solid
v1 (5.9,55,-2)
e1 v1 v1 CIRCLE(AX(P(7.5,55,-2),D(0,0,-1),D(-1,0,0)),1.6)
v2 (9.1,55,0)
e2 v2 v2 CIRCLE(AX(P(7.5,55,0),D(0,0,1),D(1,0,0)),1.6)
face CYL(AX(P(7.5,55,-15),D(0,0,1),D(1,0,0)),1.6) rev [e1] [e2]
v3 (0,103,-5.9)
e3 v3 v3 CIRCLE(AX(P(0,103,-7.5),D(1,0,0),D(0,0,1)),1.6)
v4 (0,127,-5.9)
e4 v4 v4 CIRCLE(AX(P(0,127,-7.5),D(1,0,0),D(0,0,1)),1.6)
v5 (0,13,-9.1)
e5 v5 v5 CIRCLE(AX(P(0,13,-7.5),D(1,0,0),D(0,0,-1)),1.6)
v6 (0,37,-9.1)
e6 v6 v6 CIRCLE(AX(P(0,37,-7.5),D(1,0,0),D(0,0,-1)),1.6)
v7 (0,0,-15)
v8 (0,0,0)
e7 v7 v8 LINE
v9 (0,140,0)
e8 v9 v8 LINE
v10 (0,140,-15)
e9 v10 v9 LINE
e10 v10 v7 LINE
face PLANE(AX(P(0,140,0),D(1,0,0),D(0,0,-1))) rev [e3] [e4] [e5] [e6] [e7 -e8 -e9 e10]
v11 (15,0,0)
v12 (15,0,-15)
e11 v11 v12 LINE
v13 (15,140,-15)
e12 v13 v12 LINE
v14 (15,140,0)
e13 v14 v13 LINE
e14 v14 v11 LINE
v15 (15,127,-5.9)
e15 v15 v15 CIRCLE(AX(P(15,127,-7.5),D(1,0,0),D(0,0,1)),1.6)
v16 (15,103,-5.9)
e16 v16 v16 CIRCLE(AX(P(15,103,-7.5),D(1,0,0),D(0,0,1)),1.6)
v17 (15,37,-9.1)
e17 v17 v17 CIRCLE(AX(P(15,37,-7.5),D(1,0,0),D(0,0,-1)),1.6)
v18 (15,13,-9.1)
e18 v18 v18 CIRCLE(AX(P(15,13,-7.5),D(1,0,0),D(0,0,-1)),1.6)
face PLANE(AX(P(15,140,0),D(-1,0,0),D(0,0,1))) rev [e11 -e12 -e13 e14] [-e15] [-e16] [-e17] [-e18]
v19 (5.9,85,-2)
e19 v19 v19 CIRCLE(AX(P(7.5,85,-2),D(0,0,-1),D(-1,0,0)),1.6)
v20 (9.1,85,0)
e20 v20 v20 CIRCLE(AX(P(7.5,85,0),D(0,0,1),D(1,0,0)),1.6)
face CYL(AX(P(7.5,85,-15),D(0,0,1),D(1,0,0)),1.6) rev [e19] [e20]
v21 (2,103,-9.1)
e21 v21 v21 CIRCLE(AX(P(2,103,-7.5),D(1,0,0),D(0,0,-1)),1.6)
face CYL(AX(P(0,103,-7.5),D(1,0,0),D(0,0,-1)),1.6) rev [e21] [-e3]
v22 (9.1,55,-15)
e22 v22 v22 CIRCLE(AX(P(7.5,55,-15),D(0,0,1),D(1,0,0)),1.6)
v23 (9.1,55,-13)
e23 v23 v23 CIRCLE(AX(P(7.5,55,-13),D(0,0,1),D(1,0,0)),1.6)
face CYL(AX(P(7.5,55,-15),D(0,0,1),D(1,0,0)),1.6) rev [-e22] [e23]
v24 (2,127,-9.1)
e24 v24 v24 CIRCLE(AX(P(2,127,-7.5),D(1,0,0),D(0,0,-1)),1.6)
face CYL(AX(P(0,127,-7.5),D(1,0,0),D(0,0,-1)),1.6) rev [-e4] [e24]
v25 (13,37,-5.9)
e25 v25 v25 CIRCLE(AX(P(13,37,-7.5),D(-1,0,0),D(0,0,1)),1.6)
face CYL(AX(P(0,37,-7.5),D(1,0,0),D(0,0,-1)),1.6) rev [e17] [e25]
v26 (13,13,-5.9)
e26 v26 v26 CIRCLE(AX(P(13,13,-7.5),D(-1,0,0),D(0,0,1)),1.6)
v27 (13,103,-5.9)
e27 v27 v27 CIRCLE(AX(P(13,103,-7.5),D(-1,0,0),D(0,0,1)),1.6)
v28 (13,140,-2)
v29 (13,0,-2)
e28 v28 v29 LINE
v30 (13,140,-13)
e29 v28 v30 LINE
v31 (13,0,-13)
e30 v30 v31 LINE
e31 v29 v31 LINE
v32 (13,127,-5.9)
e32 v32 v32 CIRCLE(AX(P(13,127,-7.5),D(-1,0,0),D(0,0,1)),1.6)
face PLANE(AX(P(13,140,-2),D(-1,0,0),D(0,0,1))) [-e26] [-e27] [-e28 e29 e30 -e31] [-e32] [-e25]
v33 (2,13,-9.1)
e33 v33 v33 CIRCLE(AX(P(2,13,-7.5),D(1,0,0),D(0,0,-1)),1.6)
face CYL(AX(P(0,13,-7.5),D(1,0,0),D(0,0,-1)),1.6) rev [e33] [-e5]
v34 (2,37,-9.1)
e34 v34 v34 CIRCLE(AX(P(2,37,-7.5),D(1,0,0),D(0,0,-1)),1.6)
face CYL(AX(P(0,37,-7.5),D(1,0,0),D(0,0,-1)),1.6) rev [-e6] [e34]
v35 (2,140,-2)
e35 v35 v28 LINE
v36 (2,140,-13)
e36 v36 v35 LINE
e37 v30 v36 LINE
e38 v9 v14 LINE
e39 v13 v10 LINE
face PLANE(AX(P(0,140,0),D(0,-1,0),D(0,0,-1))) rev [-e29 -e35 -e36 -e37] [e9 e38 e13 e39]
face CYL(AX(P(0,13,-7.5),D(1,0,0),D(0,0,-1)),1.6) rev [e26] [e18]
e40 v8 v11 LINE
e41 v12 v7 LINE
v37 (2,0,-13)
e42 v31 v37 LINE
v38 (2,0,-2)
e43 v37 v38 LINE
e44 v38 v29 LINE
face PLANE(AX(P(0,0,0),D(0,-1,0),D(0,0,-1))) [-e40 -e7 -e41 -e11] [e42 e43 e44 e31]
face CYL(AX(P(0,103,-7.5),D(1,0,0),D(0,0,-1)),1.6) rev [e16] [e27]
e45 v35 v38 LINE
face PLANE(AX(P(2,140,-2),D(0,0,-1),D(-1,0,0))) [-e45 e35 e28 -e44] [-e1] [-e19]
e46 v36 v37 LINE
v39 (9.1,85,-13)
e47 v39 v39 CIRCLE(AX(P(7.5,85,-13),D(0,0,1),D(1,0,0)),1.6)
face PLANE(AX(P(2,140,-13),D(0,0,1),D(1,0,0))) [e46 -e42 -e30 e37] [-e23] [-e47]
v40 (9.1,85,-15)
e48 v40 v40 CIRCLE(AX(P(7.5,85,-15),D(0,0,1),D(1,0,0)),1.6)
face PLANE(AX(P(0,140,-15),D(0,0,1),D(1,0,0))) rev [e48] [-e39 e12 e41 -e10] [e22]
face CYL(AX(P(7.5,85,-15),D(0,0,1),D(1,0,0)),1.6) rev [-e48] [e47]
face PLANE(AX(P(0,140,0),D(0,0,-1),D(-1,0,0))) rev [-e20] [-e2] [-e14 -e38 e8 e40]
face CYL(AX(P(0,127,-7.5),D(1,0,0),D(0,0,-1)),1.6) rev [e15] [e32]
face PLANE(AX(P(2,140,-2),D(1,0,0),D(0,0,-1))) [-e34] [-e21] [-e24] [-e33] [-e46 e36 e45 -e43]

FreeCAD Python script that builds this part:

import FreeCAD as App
import Part
import Sketcher
from FreeCAD import Vector
Q = App.Units.Quantity

doc = App.newDocument("Part")
params = doc.addObject("Spreadsheet::Sheet", "Params")
for row, (alias, value) in enumerate([
    ("sketch1_width", "15 mm"),
    ("sketch1_width2", "11 mm"),
    ("pad1_length", "140 mm"),
    ("sketch2_diameter", "3.2 mm"),
    ("sketch3_diameter", "3.2 mm"),
], start=1):
    params.set(f"A{row}", alias)
    params.set(f"B{row}", "=" + value)
    params.setAlias(f"B{row}", alias)

body = doc.addObject("PartDesign::Body", "Body")

# Sketch on XZ plane
sketch1 = body.newObject("Sketcher::SketchObject", "Sketch")
sketch1.AttachmentSupport = (doc.getObject("XZ_Plane"), [""])
sketch1.MapMode = "FlatFace"
sketch1.addGeometry(Part.LineSegment(Vector(0, -15, 0), Vector(0, 0, 0)), False)
sketch1.addGeometry(Part.LineSegment(Vector(0, 0, 0), Vector(15, 0, 0)), False)
sketch1.addGeometry(Part.LineSegment(Vector(15, 0, 0), Vector(15, -15, 0)), False)
sketch1.addGeometry(Part.LineSegment(Vector(15, -15, 0), Vector(0, -15, 0)), False)
sketch1.addGeometry(Part.LineSegment(Vector(13, -2, 0), Vector(2, -2, 0)), False)
sketch1.addGeometry(Part.LineSegment(Vector(2, -2, 0), Vector(2, -13, 0)), False)
sketch1.addGeometry(Part.LineSegment(Vector(2, -13, 0), Vector(13, -13, 0)), False)
sketch1.addGeometry(Part.LineSegment(Vector(13, -13, 0), Vector(13, -2, 0)), False)
sketch1.addConstraint(Sketcher.Constraint("Coincident", 0, 2, 1, 1))
sketch1.addConstraint(Sketcher.Constraint("Coincident", 1, 2, 2, 1))
sketch1.addConstraint(Sketcher.Constraint("Coincident", 2, 2, 3, 1))
sketch1.addConstraint(Sketcher.Constraint("Coincident", 3, 2, 0, 1))
sketch1.addConstraint(Sketcher.Constraint("Coincident", 4, 2, 5, 1))
sketch1.addConstraint(Sketcher.Constraint("Coincident", 5, 2, 6, 1))
sketch1.addConstraint(Sketcher.Constraint("Coincident", 6, 2, 7, 1))
sketch1.addConstraint(Sketcher.Constraint("Coincident", 7, 2, 4, 1))
sketch1.addConstraint(Sketcher.Constraint("Vertical", 0))
sketch1.addConstraint(Sketcher.Constraint("Horizontal", 1))
sketch1.addConstraint(Sketcher.Constraint("Vertical", 2))
sketch1.addConstraint(Sketcher.Constraint("Horizontal", 3))
sketch1.addConstraint(Sketcher.Constraint("Horizontal", 4))
sketch1.addConstraint(Sketcher.Constraint("Vertical", 5))
sketch1.addConstraint(Sketcher.Constraint("Horizontal", 6))
sketch1.addConstraint(Sketcher.Constraint("Vertical", 7))
sketch1.addConstraint(Sketcher.Constraint("Coincident", 0, 2, -1, 1))
sketch1.addConstraint(Sketcher.Constraint("Equal", 3, 0))
sketch1.addConstraint(Sketcher.Constraint("Equal", 6, 5))
sketch1.addConstraint(Sketcher.Constraint("DistanceX", 1, 1, 1, 2, Q("15 mm")))
sketch1.addConstraint(Sketcher.Constraint("DistanceX", 4, 2, 4, 1, Q("11 mm")))
sketch1.addConstraint(Sketcher.Constraint("DistanceX", -1, 1, 4, 2, Q("2 mm")))
sketch1.addConstraint(Sketcher.Constraint("DistanceY", 4, 2, -1, 1, Q("2 mm")))
sketch1.setExpression("Constraints[19]", "Params.sketch1_width")
sketch1.setExpression("Constraints[20]", "Params.sketch1_width2")
pad1 = body.newObject("PartDesign::Pad", "Pad")
pad1.Profile = sketch1
pad1.setExpression("Length", "Params.pad1_length")
pad1.Reversed = True

# Sketch on YZ plane
sketch2 = body.newObject("Sketcher::SketchObject", "Sketch001")
sketch2.AttachmentSupport = (doc.getObject("YZ_Plane"), [""])
sketch2.MapMode = "FlatFace"
sketch2.AttachmentOffset = App.Placement(Vector(0, 0, 15), App.Rotation())
sketch2.addGeometry(Part.Circle(Vector(13, -7.5, 0), Vector(0, 0, 1), 1.6), False)
sketch2.addGeometry(Part.Circle(Vector(37, -7.5, 0), Vector(0, 0, 1), 1.6), False)
sketch2.addGeometry(Part.Circle(Vector(103, -7.5, 0), Vector(0, 0, 1), 1.6), False)
sketch2.addGeometry(Part.Circle(Vector(127, -7.5, 0), Vector(0, 0, 1), 1.6), False)
sketch2.addConstraint(Sketcher.Constraint("Equal", 0, 1))
sketch2.addConstraint(Sketcher.Constraint("Equal", 1, 2))
sketch2.addConstraint(Sketcher.Constraint("Equal", 2, 3))
sketch2.addConstraint(Sketcher.Constraint("Horizontal", 0, 3, 1, 3))
sketch2.addConstraint(Sketcher.Constraint("Horizontal", 1, 3, 2, 3))
sketch2.addConstraint(Sketcher.Constraint("Horizontal", 2, 3, 3, 3))
sketch2.addConstraint(Sketcher.Constraint("Diameter", 0, Q("3.2 mm")))
sketch2.addConstraint(Sketcher.Constraint("DistanceX", -1, 1, 0, 3, Q("13 mm")))
sketch2.addConstraint(Sketcher.Constraint("DistanceX", -1, 1, 1, 3, Q("37 mm")))
sketch2.addConstraint(Sketcher.Constraint("DistanceX", -1, 1, 2, 3, Q("103 mm")))
sketch2.addConstraint(Sketcher.Constraint("DistanceX", -1, 1, 3, 3, Q("127 mm")))
sketch2.addConstraint(Sketcher.Constraint("DistanceY", 0, 3, -1, 1, Q("7.5 mm")))
sketch2.setExpression("Constraints[6]", "Params.sketch2_diameter")
pocket1 = body.newObject("PartDesign::Pocket", "Pocket")
pocket1.Profile = sketch2
pocket1.Type = "ThroughAll"

# Sketch on XY plane
sketch3 = body.newObject("Sketcher::SketchObject", "Sketch002")
sketch3.AttachmentSupport = (doc.getObject("XY_Plane"), [""])
sketch3.MapMode = "FlatFace"
sketch3.addGeometry(Part.Circle(Vector(7.5, 85, 0), Vector(0, 0, 1), 1.6), False)
sketch3.addGeometry(Part.Circle(Vector(7.5, 55, 0), Vector(0, 0, 1), 1.6), False)
sketch3.addConstraint(Sketcher.Constraint("Equal", 0, 1))
sketch3.addConstraint(Sketcher.Constraint("Vertical", 0, 3, 1, 3))
sketch3.addConstraint(Sketcher.Constraint("Diameter", 0, Q("3.2 mm")))
sketch3.addConstraint(Sketcher.Constraint("DistanceY", -1, 1, 0, 3, Q("85 mm")))
sketch3.addConstraint(Sketcher.Constraint("DistanceY", -1, 1, 1, 3, Q("55 mm")))
sketch3.addConstraint(Sketcher.Constraint("DistanceX", -1, 1, 0, 3, Q("7.5 mm")))
sketch3.setExpression("Constraints[2]", "Params.sketch3_diameter")
pocket2 = body.newObject("PartDesign::Pocket", "Pocket001")
pocket2.Profile = sketch3
pocket2.Type = "ThroughAll"

doc.recompute()
